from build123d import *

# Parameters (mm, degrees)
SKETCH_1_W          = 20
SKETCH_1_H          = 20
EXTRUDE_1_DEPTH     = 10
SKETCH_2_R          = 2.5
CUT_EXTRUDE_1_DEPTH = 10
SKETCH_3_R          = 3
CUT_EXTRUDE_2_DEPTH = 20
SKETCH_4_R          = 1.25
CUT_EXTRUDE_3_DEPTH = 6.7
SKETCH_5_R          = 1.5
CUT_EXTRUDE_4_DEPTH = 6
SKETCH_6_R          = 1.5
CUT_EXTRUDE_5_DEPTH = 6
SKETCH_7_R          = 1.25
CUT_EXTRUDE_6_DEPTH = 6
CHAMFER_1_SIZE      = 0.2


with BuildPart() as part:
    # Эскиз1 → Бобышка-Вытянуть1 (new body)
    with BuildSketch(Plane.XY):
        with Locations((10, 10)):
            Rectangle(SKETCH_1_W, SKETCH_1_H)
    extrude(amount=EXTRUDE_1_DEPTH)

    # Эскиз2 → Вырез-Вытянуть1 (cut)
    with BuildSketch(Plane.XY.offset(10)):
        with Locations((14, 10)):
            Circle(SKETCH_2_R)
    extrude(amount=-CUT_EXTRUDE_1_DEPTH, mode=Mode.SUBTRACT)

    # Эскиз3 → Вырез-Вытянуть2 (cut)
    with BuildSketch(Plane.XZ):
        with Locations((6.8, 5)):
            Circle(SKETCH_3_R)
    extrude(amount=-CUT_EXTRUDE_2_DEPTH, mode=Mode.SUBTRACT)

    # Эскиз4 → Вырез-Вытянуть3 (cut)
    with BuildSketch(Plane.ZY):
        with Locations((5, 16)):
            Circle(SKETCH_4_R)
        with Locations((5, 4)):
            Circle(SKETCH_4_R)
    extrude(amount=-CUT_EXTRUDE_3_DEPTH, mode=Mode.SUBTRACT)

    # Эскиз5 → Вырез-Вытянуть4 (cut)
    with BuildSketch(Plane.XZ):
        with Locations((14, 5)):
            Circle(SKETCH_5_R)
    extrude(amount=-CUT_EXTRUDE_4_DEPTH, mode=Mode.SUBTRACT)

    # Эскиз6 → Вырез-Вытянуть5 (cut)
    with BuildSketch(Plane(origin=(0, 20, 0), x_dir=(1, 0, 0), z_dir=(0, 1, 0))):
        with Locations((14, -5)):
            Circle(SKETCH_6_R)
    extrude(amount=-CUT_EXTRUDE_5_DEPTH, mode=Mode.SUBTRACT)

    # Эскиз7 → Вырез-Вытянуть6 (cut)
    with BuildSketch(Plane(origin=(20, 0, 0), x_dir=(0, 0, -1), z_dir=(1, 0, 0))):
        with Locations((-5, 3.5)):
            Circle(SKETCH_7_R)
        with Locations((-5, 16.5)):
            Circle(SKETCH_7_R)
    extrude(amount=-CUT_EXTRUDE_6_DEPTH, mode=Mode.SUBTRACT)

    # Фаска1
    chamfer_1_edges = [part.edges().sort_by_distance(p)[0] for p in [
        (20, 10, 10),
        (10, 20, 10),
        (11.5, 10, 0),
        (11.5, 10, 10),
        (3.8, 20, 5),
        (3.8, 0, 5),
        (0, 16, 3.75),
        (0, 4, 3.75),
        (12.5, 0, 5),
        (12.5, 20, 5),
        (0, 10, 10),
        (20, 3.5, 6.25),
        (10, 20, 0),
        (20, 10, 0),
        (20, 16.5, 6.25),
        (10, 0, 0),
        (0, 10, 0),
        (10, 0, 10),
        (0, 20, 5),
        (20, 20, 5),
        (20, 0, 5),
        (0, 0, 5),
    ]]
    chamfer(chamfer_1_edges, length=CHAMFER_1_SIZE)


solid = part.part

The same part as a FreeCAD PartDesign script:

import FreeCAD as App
import Part
import Sketcher
Q = App.Units.Quantity


def edges_at(feature, points):
    """Names of the edges that pass closest to the given points."""
    edges = feature.Shape.Edges
    near = lambda p: min(range(len(edges)), key=lambda i: edges[i].distToShape(Part.Vertex(*p))[0])
    return sorted({f"Edge{near(p) + 1}" for p in points})

doc = App.newDocument("Part")
body = doc.addObject("PartDesign::Body", "Body")

sketch1 = body.newObject("Sketcher::SketchObject", "Sketch")
sketch1.AttachmentSupport = (doc.getObject("XY_Plane"), [""])
sketch1.MapMode = "FlatFace"
sketch1.addGeometry([
    Part.LineSegment(App.Vector(0, 20, 0), App.Vector(0, 0, 0)),
    Part.LineSegment(App.Vector(0, 0, 0), App.Vector(20, 0, 0)),
    Part.LineSegment(App.Vector(20, 0, 0), App.Vector(20, 20, 0)),
    Part.LineSegment(App.Vector(20, 20, 0), App.Vector(0, 20, 0)),
], False)
sketch1.addConstraint([
    Sketcher.Constraint("Coincident", 0, 2, 1, 1),
    Sketcher.Constraint("Coincident", 1, 2, 2, 1),
    Sketcher.Constraint("Coincident", 2, 2, 3, 1),
    Sketcher.Constraint("Coincident", 3, 2, 0, 1),
    Sketcher.Constraint("Vertical", 0),
    Sketcher.Constraint("Horizontal", 1),
    Sketcher.Constraint("Vertical", 2),
    Sketcher.Constraint("Horizontal", 3),
    Sketcher.Constraint("Coincident", 0, 2, -1, 1),
    Sketcher.Constraint("Equal", 3, 0),
    Sketcher.Constraint("DistanceX", 1, 1, 1, 2, Q("20 mm")),
])
pad1 = body.newObject("PartDesign::Pad", "Pad")
pad1.Profile = sketch1
pad1.Length = 10

sketch2 = body.newObject("Sketcher::SketchObject", "Sketch001")
sketch2.AttachmentSupport = (doc.getObject("XY_Plane"), [""])
sketch2.MapMode = "FlatFace"
sketch2.AttachmentOffset = App.Placement(App.Vector(0, 0, 10), App.Rotation())
sketch2.addGeometry(Part.Circle(App.Vector(14, 10, 0), App.Vector(0, 0, 1), 2.5), False)
sketch2.addConstraint([
    Sketcher.Constraint("Diameter", 0, Q("5 mm")),
    Sketcher.Constraint("DistanceX", -1, 1, 0, 3, Q("14 mm")),
    Sketcher.Constraint("DistanceY", -1, 1, 0, 3, Q("10 mm")),
])
pocket1 = body.newObject("PartDesign::Pocket", "Pocket")
pocket1.Profile = sketch2
pocket1.Length = 10

sketch3 = body.newObject("Sketcher::SketchObject", "Sketch002")
sketch3.AttachmentSupport = (doc.getObject("XZ_Plane"), [""])
sketch3.MapMode = "FlatFace"
sketch3.addGeometry(Part.Circle(App.Vector(6.8, 5, 0), App.Vector(0, 0, 1), 3), False)
sketch3.addConstraint([
    Sketcher.Constraint("Diameter", 0, Q("6 mm")),
    Sketcher.Constraint("DistanceY", -1, 1, 0, 3, Q("5 mm")),
    Sketcher.Constraint("DistanceX", -1, 1, 0, 3, Q("6.8 mm")),
])
pocket2 = body.newObject("PartDesign::Pocket", "Pocket001")
pocket2.Profile = sketch3
pocket2.Length = 20

sketch4 = body.newObject("Sketcher::SketchObject", "Sketch003")
sketch4.AttachmentSupport = (doc.getObject("YZ_Plane"), [""])
sketch4.MapMode = "FlatFace"
sketch4.addGeometry([
    Part.Circle(App.Vector(16, 5, 0), App.Vector(0, 0, 1), 1.25),
    Part.Circle(App.Vector(4, 5, 0), App.Vector(0, 0, 1), 1.25),
], False)
sketch4.addConstraint([
    Sketcher.Constraint("Equal", 0, 1),
    Sketcher.Constraint("Horizontal", 0, 3, 1, 3),
    Sketcher.Constraint("Diameter", 0, Q("2.5 mm")),
    Sketcher.Constraint("DistanceX", -1, 1, 0, 3, Q("16 mm")),
    Sketcher.Constraint("DistanceY", -1, 1, 0, 3, Q("5 mm")),
    Sketcher.Constraint("DistanceX", -1, 1, 1, 3, Q("4 mm")),
])
pocket3 = body.newObject("PartDesign::Pocket", "Pocket002")
pocket3.Profile = sketch4
pocket3.Length = 6.7
pocket3.Reversed = True

sketch5 = body.newObject("Sketcher::SketchObject", "Sketch004")
sketch5.AttachmentSupport = (doc.getObject("XZ_Plane"), [""])
sketch5.MapMode = "FlatFace"
sketch5.addGeometry(Part.Circle(App.Vector(14, 5, 0), App.Vector(0, 0, 1), 1.5), False)
sketch5.addConstraint([
    Sketcher.Constraint("Diameter", 0, Q("3 mm")),
    Sketcher.Constraint("DistanceX", -1, 1, 0, 3, Q("14 mm")),
    Sketcher.Constraint("DistanceY", -1, 1, 0, 3, Q("5 mm")),
])
pocket4 = body.newObject("PartDesign::Pocket", "Pocket003")
pocket4.Profile = sketch5
pocket4.Length = 6

sketch6 = body.newObject("Sketcher::SketchObject", "Sketch005")
sketch6.AttachmentSupport = (doc.getObject("XZ_Plane"), [""])
sketch6.MapMode = "FlatFace"
sketch6.AttachmentOffset = App.Placement(App.Vector(0, 0, -20), App.Rotation())
sketch6.addGeometry(Part.Circle(App.Vector(14, 5, 0), App.Vector(0, 0, 1), 1.5), False)
sketch6.addConstraint([
    Sketcher.Constraint("Diameter", 0, Q("3 mm")),
    Sketcher.Constraint("DistanceX", -1, 1, 0, 3, Q("14 mm")),
    Sketcher.Constraint("DistanceY", -1, 1, 0, 3, Q("5 mm")),
])
pocket5 = body.newObject("PartDesign::Pocket", "Pocket004")
pocket5.Profile = sketch6
pocket5.Length = 6
pocket5.Reversed = True

sketch7 = body.newObject("Sketcher::SketchObject", "Sketch006")
sketch7.AttachmentSupport = (doc.getObject("YZ_Plane"), [""])
sketch7.MapMode = "FlatFace"
sketch7.AttachmentOffset = App.Placement(App.Vector(0, 0, 20), App.Rotation())
sketch7.addGeometry([
    Part.Circle(App.Vector(3.5, 5, 0), App.Vector(0, 0, 1), 1.25),
    Part.Circle(App.Vector(16.5, 5, 0), App.Vector(0, 0, 1), 1.25),
], False)
sketch7.addConstraint([
    Sketcher.Constraint("Equal", 0, 1),
    Sketcher.Constraint("Horizontal", 0, 3, 1, 3),
    Sketcher.Constraint("Diameter", 0, Q("2.5 mm")),
    Sketcher.Constraint("DistanceY", -1, 1, 0, 3, Q("5 mm")),
    Sketcher.Constraint("DistanceX", 0, 3, 1, 3, Q("13 mm")),
    Sketcher.Constraint("DistanceX", -1, 1, 0, 3, Q("3.5 mm")),
])
pocket6 = body.newObject("PartDesign::Pocket", "Pocket005")
pocket6.Profile = sketch7
pocket6.Length = 6
doc.recompute()

chamfer = body.newObject("PartDesign::Chamfer", "Chamfer")
chamfer.Base = (pocket6, edges_at(pocket6, [
    (20, 10, 10),
    (10, 20, 10),
    (11.5, 10, 0),
    (11.5, 10, 10),
    (3.8, 20, 5),
    (3.8, 0, 5),
    (0, 16, 3.75),
    (0, 4, 3.75),
    (12.5, 0, 5),
    (12.5, 20, 5),
    (0, 10, 10),
    (20, 3.5, 6.25),
    (10, 20, 0),
    (20, 10, 0),
    (20, 16.5, 6.25),
    (10, 0, 0),
    (0, 10, 0),
    (10, 0, 10),
    (0, 20, 5),
    (20, 20, 5),
    (20, 0, 5),
    (0, 0, 5),
]))
chamfer.Size = 0.2

doc.recompute()
